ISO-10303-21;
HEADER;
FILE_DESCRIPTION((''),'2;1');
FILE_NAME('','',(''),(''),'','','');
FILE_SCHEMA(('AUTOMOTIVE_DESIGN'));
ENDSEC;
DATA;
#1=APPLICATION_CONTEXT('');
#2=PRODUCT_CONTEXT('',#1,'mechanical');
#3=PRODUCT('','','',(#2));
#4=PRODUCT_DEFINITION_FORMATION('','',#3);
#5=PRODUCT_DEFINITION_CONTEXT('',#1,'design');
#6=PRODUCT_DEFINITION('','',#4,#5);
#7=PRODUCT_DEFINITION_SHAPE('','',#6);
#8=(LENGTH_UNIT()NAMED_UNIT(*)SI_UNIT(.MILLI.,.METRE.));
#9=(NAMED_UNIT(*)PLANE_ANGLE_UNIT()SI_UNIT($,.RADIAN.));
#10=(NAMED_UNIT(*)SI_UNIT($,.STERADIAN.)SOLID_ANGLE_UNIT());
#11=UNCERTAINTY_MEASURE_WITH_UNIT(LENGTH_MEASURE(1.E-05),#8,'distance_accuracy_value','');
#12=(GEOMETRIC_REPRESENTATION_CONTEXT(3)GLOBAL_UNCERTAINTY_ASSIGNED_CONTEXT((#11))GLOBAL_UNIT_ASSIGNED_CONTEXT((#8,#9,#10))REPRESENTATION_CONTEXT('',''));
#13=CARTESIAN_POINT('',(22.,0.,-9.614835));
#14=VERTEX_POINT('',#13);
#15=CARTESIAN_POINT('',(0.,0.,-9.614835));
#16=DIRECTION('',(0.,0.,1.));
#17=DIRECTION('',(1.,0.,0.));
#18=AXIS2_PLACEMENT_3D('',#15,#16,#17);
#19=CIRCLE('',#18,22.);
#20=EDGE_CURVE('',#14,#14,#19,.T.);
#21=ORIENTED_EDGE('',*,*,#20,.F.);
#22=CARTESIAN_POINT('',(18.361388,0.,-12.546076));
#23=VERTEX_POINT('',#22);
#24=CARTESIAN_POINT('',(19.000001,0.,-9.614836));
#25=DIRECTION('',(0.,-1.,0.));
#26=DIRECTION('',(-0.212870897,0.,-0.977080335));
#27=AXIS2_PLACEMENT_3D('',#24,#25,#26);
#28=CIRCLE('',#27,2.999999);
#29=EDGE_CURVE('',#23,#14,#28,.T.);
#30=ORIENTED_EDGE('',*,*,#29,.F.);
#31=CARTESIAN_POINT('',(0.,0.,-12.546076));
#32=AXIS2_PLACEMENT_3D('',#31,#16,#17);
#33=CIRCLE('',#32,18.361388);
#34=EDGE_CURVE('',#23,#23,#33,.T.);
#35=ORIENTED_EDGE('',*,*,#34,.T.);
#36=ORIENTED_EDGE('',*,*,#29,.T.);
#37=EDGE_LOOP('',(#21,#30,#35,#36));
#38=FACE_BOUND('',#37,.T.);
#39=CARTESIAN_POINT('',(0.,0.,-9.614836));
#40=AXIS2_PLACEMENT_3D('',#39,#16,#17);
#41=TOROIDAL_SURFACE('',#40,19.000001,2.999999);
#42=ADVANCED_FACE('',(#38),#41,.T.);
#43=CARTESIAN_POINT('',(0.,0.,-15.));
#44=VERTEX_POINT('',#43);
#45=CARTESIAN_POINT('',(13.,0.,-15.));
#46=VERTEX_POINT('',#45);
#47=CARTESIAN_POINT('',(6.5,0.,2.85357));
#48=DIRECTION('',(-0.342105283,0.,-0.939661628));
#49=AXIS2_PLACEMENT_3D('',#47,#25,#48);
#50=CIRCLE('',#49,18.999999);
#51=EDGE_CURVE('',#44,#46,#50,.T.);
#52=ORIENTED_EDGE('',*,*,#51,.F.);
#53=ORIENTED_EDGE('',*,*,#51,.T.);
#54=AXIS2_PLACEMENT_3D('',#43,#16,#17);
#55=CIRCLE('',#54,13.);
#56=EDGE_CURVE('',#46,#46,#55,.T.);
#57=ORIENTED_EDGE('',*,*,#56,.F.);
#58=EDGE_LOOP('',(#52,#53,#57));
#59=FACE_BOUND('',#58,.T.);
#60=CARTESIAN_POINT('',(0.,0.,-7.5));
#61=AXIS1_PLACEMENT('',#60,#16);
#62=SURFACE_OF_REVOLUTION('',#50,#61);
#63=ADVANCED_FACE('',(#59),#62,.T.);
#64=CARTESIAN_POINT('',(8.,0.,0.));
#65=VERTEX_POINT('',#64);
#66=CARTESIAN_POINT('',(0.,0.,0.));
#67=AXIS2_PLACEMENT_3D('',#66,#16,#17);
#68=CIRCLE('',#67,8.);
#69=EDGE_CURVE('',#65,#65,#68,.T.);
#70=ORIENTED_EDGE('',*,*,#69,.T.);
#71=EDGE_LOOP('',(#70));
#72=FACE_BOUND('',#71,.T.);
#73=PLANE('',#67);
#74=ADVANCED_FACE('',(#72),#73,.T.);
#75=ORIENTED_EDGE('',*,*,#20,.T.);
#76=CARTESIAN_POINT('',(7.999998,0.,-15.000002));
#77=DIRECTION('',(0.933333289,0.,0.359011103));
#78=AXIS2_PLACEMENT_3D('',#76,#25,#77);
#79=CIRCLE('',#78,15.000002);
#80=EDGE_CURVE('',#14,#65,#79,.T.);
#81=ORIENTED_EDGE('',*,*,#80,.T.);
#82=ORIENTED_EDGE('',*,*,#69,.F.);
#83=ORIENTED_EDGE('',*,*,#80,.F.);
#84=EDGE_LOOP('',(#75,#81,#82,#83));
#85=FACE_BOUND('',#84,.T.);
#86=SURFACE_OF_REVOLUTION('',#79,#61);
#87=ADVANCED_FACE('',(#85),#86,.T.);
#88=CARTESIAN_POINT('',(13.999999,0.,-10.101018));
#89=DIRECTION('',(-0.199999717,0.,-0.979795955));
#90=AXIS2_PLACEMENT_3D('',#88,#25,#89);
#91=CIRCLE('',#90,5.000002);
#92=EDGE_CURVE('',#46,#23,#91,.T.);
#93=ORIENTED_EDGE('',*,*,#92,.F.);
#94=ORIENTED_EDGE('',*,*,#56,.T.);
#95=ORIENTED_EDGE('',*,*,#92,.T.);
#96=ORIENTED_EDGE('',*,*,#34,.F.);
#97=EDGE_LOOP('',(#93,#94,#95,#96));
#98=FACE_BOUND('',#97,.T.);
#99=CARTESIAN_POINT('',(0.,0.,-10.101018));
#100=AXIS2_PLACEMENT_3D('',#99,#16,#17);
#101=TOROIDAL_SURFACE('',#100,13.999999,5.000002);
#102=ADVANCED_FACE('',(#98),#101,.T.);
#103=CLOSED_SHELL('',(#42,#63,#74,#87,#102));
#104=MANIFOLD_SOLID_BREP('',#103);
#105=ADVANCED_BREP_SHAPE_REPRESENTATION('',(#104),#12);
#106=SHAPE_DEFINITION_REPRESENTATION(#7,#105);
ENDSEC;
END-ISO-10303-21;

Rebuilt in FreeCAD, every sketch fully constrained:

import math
import FreeCAD as App
import Part
import Sketcher
from FreeCAD import Vector

doc = App.newDocument("Part")
body = doc.addObject("PartDesign::Body", "Body")

# Sketch on XZ plane
sketch1 = body.newObject("Sketcher::SketchObject", "Sketch")
sketch1.AttachmentSupport = (doc.getObject("XZ_Plane"), [""])
sketch1.MapMode = "FlatFace"
sketch1.addGeometry(Part.LineSegment(Vector(8, 0, 0), Vector(0, 0, 0)), False)
sketch1.addGeometry(Part.LineSegment(Vector(0, 0, 0), Vector(0, -15, 0)), False)
sketch1.addGeometry(Part.ArcOfCircle(Part.Circle(Vector(6.5, 2.9, 0), Vector(0, 0, 1), 19), math.radians(-110), math.radians(-70)), False)
sketch1.addGeometry(Part.ArcOfCircle(Part.Circle(Vector(14, -10.1, 0), Vector(0, 0, 1), 5), math.radians(-102), math.radians(-29)), False)
sketch1.addGeometry(Part.ArcOfCircle(Part.Circle(Vector(19, -9.6, 0), Vector(0, 0, 1), 3), math.radians(-102), math.radians(0)), False)
sketch1.addGeometry(Part.ArcOfCircle(Part.Circle(Vector(8, -15, 0), Vector(0, 0, 1), 15), math.radians(21), math.radians(90)), False)
sketch1.addConstraint(Sketcher.Constraint("Coincident", 0, 2, 1, 1))
sketch1.addConstraint(Sketcher.Constraint("Coincident", 1, 2, 2, 1))
sketch1.addConstraint(Sketcher.Constraint("Coincident", 2, 2, 3, 1))
sketch1.addConstraint(Sketcher.Constraint("Coincident", 3, 2, 4, 1))
sketch1.addConstraint(Sketcher.Constraint("Coincident", 4, 2, 5, 1))
sketch1.addConstraint(Sketcher.Constraint("Tangent", 5, 2, 0, 1))
sketch1.addConstraint(Sketcher.Constraint("Horizontal", 0))
sketch1.addConstraint(Sketcher.Constraint("Vertical", 1))
sketch1.addConstraint(Sketcher.Constraint("Coincident", 0, 2, -1, 1))
sketch1.addConstraint(Sketcher.Constraint("Horizontal", 1, 2, 2, 2))
sketch1.addConstraint(Sketcher.Constraint("Radius", 2, 18.999999))
sketch1.addConstraint(Sketcher.Constraint("Radius", 4, 2.999999))
sketch1.addConstraint(Sketcher.Constraint("DistanceX", 0, 2, 0, 1, 8.0))
sketch1.addConstraint(Sketcher.Constraint("DistanceY", 1, 2, 1, 1, 15.0))
sketch1.addConstraint(Sketcher.Constraint("DistanceX", -1, 1, 3, 3, 13.999999))
sketch1.addConstraint(Sketcher.Constraint("DistanceX", -1, 1, 4, 3, 19.000001))
sketch1.addConstraint(Sketcher.Constraint("DistanceX", -1, 1, 2, 2, 13.0))
sketch1.addConstraint(Sketcher.Constraint("Radius", 3, 5.000002))
sketch1.addConstraint(Sketcher.Constraint("Radius", 5, 15.000002))
sketch1.addConstraint(Sketcher.Constraint("DistanceY", 3, 2, 4, 3, 2.93124))
revolution = body.newObject("PartDesign::Revolution", "Revolution")
revolution.Profile = sketch1
revolution.ReferenceAxis = (sketch1, ["V_Axis"])
revolution.Angle = 360

doc.recompute()
